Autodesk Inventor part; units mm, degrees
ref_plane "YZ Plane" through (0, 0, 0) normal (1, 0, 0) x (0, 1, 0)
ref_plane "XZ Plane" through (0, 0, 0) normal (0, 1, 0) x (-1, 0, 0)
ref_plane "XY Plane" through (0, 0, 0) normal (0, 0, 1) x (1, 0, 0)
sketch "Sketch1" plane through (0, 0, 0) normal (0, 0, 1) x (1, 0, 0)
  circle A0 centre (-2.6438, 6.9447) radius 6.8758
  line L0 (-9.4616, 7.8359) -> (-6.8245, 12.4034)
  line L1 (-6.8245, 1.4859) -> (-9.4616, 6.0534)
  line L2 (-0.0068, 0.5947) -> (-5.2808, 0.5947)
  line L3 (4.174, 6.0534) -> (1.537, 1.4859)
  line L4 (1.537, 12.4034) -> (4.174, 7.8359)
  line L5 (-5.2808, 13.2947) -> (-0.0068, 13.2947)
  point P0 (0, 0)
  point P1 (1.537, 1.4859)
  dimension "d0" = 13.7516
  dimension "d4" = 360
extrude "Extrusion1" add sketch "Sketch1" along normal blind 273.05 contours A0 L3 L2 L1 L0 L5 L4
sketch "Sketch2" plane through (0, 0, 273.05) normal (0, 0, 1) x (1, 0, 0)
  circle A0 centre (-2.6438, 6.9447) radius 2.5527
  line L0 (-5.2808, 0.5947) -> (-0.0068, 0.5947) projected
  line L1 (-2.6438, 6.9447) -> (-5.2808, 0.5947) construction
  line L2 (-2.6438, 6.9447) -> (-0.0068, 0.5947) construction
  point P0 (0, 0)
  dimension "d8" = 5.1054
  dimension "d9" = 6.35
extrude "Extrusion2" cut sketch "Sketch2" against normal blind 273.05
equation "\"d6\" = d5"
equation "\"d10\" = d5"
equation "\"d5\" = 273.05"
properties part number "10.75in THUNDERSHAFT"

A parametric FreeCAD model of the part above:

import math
import FreeCAD as App
import Part
import Sketcher
from FreeCAD import Vector
Q = App.Units.Quantity

doc = App.newDocument("Part")
body = doc.addObject("PartDesign::Body", "Body")

# Sketch on XY plane
sketch1 = body.newObject("Sketcher::SketchObject", "Sketch")
sketch1.AttachmentSupport = (doc.getObject("XY_Plane"), [""])
sketch1.MapMode = "FlatFace"
sketch1.addGeometry([
    Part.ArcOfCircle(Part.Circle(Vector(-2.6, 6.9, 0), Vector(0, 0, 1), 6.9), math.radians(-7.45), math.radians(7.45)),  # 0
    Part.LineSegment(Vector(4.2, 7.8, 0), Vector(1.5, 12.4, 0)),  # 1
    Part.ArcOfCircle(Part.Circle(Vector(-2.6, 6.9, 0), Vector(0, 0, 1), 6.9), math.radians(52.55), math.radians(67.45)),  # 2
    Part.LineSegment(Vector(0, 13.3, 0), Vector(-5.3, 13.3, 0)),  # 3
    Part.ArcOfCircle(Part.Circle(Vector(-2.6, 6.9, 0), Vector(0, 0, 1), 6.9), math.radians(112.55), math.radians(127.45)),  # 4
    Part.LineSegment(Vector(-6.8, 12.4, 0), Vector(-9.5, 7.8, 0)),  # 5
    Part.ArcOfCircle(Part.Circle(Vector(-2.6, 6.9, 0), Vector(0, 0, 1), 6.9), math.radians(172.55), math.radians(187.45)),  # 6
    Part.LineSegment(Vector(-9.5, 6.1, 0), Vector(-6.8, 1.5, 0)),  # 7
    Part.ArcOfCircle(Part.Circle(Vector(-2.6, 6.9, 0), Vector(0, 0, 1), 6.9), math.radians(-127.45), math.radians(-112.55)),  # 8
    Part.LineSegment(Vector(-5.3, 0.6, 0), Vector(0, 0.6, 0)),  # 9
    Part.ArcOfCircle(Part.Circle(Vector(-2.6, 6.9, 0), Vector(0, 0, 1), 6.9), math.radians(-67.45), math.radians(-52.55)),  # 10
    Part.LineSegment(Vector(1.5, 1.5, 0), Vector(4.2, 6.1, 0)),  # 11
], False)
sketch1.addConstraint([
    Sketcher.Constraint("Coincident", 0, 2, 1, 1),
    Sketcher.Constraint("Coincident", 1, 2, 2, 1),
    Sketcher.Constraint("Coincident", 2, 2, 3, 1),
    Sketcher.Constraint("Coincident", 3, 2, 4, 1),
    Sketcher.Constraint("Coincident", 4, 2, 5, 1),
    Sketcher.Constraint("Coincident", 5, 2, 6, 1),
    Sketcher.Constraint("Coincident", 6, 2, 7, 1),
    Sketcher.Constraint("Coincident", 7, 2, 8, 1),
    Sketcher.Constraint("Coincident", 8, 2, 9, 1),
    Sketcher.Constraint("Coincident", 9, 2, 10, 1),
    Sketcher.Constraint("Coincident", 10, 2, 11, 1),
    Sketcher.Constraint("Coincident", 11, 2, 0, 1),
    Sketcher.Constraint("Horizontal", 3),
    Sketcher.Constraint("Horizontal", 9),
    Sketcher.Constraint("Coincident", 2, 3, 0, 3),
    Sketcher.Constraint("Coincident", 4, 3, 0, 3),
    Sketcher.Constraint("Coincident", 6, 3, 0, 3),
    Sketcher.Constraint("Coincident", 8, 3, 0, 3),
    Sketcher.Constraint("Coincident", 10, 3, 0, 3),
    Sketcher.Constraint("Equal", 0, 2),
    Sketcher.Constraint("Equal", 2, 4),
    Sketcher.Constraint("Equal", 4, 6),
    Sketcher.Constraint("Equal", 6, 8),
    Sketcher.Constraint("Equal", 8, 10),
    Sketcher.Constraint("Parallel", 1, 7),
    Sketcher.Constraint("Parallel", 5, 11),
    Sketcher.Constraint("Horizontal", 1, 2, 4, 2),
    Sketcher.Constraint("Horizontal", 0, 2, 5, 2),
    Sketcher.Constraint("Horizontal", 7, 2, 10, 2),
    Sketcher.Constraint("Vertical", 5, 2, 6, 2),
    Sketcher.Constraint("Vertical", 3, 2, 8, 2),
    Sketcher.Constraint("Radius", 0, Q("0.2707 in")),
    Sketcher.Constraint("Angle", 1, Q("119.9996 deg")),
    Sketcher.Constraint("DistanceY", 0, 3, 2, 2, Q("0.25 in")),
    Sketcher.Constraint("DistanceY", 10, 2, 0, 2, Q("0.25 in")),
    Sketcher.Constraint("DistanceY", -1, 1, 0, 2, Q("0.3085 in")),
    Sketcher.Constraint("DistanceX", -1, 1, 1, 2, Q("0.0605 in")),
])
pad1 = body.newObject("PartDesign::Pad", "Pad")
pad1.Profile = sketch1
pad1.Length = Q("10.75 in")

# Sketch on XY plane
sketch2 = body.newObject("Sketcher::SketchObject", "Sketch001")
sketch2.AttachmentSupport = (doc.getObject("XY_Plane"), [""])
sketch2.MapMode = "FlatFace"
sketch2.AttachmentOffset = App.Placement(Vector(0, 0, 10.75 * 25.4), App.Rotation())
sketch2.addGeometry(Part.Circle(Vector(-2.6, 6.9, 0), Vector(0, 0, 1), 2.6), False)
sketch2.addConstraint([
    Sketcher.Constraint("Diameter", 0, Q("0.201 in")),
    Sketcher.Constraint("DistanceX", 0, 3, -1, 1, 2.6438),
    Sketcher.Constraint("DistanceY", -1, 1, 0, 3, 6.9447),
])
pocket1 = body.newObject("PartDesign::Pocket", "Pocket")
pocket1.Profile = sketch2
pocket1.Length = Q("10.75 in")

doc.recompute()
